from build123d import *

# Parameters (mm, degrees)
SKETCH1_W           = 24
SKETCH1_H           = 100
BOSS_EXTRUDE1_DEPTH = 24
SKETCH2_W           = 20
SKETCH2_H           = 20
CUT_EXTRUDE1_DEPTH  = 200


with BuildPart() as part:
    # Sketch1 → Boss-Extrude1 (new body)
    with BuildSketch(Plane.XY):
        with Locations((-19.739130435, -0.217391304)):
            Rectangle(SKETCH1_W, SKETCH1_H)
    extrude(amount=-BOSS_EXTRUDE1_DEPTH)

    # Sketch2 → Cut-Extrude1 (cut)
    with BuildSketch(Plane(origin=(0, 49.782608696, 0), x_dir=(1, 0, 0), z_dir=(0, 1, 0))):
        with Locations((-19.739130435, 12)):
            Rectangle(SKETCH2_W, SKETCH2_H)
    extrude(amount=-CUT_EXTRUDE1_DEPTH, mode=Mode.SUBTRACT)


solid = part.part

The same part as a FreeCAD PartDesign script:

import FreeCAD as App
import Part
import Sketcher

V = App.Vector

doc = App.newDocument("Part")
params = doc.addObject("Spreadsheet::Sheet", "Params")
for row, (alias, value) in enumerate([
    ("sketch1_width", "24 mm"),
    ("sketch1_height", "100 mm"),
    ("pad1_length", "24 mm"),
    ("sketch2_width", "20 mm"),
    ("pocket1_length", "200 mm"),
], start=1):
    params.set(f"A{row}", alias)
    params.set(f"B{row}", "=" + value)
    params.setAlias(f"B{row}", alias)

body = doc.addObject("PartDesign::Body", "Body")

sketch1 = body.newObject("Sketcher::SketchObject", "Sketch")
sketch1.AttachmentSupport = (doc.getObject("XY_Plane"), [""])
sketch1.MapMode = "FlatFace"
sketch1.addGeometry([
    Part.LineSegment(V(-32, 50, 0), V(-32, -50, 0)),
    Part.LineSegment(V(-32, -50, 0), V(-8, -50, 0)),
    Part.LineSegment(V(-8, -50, 0), V(-8, 50, 0)),
    Part.LineSegment(V(-8, 50, 0), V(-32, 50, 0)),
], False)
sketch1.addConstraint([
    Sketcher.Constraint("Coincident", 0, 2, 1, 1),
    Sketcher.Constraint("Coincident", 1, 2, 2, 1),
    Sketcher.Constraint("Coincident", 2, 2, 3, 1),
    Sketcher.Constraint("Coincident", 3, 2, 0, 1),
    Sketcher.Constraint("Vertical", 0),
    Sketcher.Constraint("Horizontal", 1),
    Sketcher.Constraint("Vertical", 2),
    Sketcher.Constraint("Horizontal", 3),
    Sketcher.Constraint("DistanceX", 1, 1, 1, 2, 24.0),
    Sketcher.Constraint("DistanceY", 0, 2, 0, 1, 100.0),
    Sketcher.Constraint("DistanceX", 0, 2, -1, 1, 31.73913),
    Sketcher.Constraint("DistanceY", 0, 2, -1, 1, 50.217391),
])
sketch1.setExpression("Constraints[8]", "Params.sketch1_width")
sketch1.setExpression("Constraints[9]", "Params.sketch1_height")
pad1 = body.newObject("PartDesign::Pad", "Pad")
pad1.Profile = sketch1
pad1.setExpression("Length", "Params.pad1_length")
pad1.Reversed = True

sketch2 = body.newObject("Sketcher::SketchObject", "Sketch001")
sketch2.AttachmentSupport = (doc.getObject("XZ_Plane"), [""])
sketch2.MapMode = "FlatFace"
sketch2.AttachmentOffset = App.Placement(V(0, 0, -49.782609), App.Rotation())
sketch2.addGeometry([
    Part.LineSegment(V(-30, -22, 0), V(-30, -2, 0)),
    Part.LineSegment(V(-30, -2, 0), V(-10, -2, 0)),
    Part.LineSegment(V(-10, -2, 0), V(-10, -22, 0)),
    Part.LineSegment(V(-10, -22, 0), V(-30, -22, 0)),
], False)
sketch2.addConstraint([
    Sketcher.Constraint("Coincident", 0, 2, 1, 1),
    Sketcher.Constraint("Coincident", 1, 2, 2, 1),
    Sketcher.Constraint("Coincident", 2, 2, 3, 1),
    Sketcher.Constraint("Coincident", 3, 2, 0, 1),
    Sketcher.Constraint("Vertical", 0),
    Sketcher.Constraint("Horizontal", 1),
    Sketcher.Constraint("Vertical", 2),
    Sketcher.Constraint("Horizontal", 3),
    Sketcher.Constraint("Equal", 3, 0),
    Sketcher.Constraint("DistanceX", 1, 1, 1, 2, 20.0),
    Sketcher.Constraint("DistanceY", 0, 2, -1, 1, 2.0),
    Sketcher.Constraint("DistanceX", 0, 2, -1, 1, 29.73913),
])
sketch2.setExpression("Constraints[9]", "Params.sketch2_width")
pocket1 = body.newObject("PartDesign::Pocket", "Pocket")
pocket1.Profile = sketch2
pocket1.setExpression("Length", "Params.pocket1_length")
pocket1.Reversed = True

doc.recompute()
